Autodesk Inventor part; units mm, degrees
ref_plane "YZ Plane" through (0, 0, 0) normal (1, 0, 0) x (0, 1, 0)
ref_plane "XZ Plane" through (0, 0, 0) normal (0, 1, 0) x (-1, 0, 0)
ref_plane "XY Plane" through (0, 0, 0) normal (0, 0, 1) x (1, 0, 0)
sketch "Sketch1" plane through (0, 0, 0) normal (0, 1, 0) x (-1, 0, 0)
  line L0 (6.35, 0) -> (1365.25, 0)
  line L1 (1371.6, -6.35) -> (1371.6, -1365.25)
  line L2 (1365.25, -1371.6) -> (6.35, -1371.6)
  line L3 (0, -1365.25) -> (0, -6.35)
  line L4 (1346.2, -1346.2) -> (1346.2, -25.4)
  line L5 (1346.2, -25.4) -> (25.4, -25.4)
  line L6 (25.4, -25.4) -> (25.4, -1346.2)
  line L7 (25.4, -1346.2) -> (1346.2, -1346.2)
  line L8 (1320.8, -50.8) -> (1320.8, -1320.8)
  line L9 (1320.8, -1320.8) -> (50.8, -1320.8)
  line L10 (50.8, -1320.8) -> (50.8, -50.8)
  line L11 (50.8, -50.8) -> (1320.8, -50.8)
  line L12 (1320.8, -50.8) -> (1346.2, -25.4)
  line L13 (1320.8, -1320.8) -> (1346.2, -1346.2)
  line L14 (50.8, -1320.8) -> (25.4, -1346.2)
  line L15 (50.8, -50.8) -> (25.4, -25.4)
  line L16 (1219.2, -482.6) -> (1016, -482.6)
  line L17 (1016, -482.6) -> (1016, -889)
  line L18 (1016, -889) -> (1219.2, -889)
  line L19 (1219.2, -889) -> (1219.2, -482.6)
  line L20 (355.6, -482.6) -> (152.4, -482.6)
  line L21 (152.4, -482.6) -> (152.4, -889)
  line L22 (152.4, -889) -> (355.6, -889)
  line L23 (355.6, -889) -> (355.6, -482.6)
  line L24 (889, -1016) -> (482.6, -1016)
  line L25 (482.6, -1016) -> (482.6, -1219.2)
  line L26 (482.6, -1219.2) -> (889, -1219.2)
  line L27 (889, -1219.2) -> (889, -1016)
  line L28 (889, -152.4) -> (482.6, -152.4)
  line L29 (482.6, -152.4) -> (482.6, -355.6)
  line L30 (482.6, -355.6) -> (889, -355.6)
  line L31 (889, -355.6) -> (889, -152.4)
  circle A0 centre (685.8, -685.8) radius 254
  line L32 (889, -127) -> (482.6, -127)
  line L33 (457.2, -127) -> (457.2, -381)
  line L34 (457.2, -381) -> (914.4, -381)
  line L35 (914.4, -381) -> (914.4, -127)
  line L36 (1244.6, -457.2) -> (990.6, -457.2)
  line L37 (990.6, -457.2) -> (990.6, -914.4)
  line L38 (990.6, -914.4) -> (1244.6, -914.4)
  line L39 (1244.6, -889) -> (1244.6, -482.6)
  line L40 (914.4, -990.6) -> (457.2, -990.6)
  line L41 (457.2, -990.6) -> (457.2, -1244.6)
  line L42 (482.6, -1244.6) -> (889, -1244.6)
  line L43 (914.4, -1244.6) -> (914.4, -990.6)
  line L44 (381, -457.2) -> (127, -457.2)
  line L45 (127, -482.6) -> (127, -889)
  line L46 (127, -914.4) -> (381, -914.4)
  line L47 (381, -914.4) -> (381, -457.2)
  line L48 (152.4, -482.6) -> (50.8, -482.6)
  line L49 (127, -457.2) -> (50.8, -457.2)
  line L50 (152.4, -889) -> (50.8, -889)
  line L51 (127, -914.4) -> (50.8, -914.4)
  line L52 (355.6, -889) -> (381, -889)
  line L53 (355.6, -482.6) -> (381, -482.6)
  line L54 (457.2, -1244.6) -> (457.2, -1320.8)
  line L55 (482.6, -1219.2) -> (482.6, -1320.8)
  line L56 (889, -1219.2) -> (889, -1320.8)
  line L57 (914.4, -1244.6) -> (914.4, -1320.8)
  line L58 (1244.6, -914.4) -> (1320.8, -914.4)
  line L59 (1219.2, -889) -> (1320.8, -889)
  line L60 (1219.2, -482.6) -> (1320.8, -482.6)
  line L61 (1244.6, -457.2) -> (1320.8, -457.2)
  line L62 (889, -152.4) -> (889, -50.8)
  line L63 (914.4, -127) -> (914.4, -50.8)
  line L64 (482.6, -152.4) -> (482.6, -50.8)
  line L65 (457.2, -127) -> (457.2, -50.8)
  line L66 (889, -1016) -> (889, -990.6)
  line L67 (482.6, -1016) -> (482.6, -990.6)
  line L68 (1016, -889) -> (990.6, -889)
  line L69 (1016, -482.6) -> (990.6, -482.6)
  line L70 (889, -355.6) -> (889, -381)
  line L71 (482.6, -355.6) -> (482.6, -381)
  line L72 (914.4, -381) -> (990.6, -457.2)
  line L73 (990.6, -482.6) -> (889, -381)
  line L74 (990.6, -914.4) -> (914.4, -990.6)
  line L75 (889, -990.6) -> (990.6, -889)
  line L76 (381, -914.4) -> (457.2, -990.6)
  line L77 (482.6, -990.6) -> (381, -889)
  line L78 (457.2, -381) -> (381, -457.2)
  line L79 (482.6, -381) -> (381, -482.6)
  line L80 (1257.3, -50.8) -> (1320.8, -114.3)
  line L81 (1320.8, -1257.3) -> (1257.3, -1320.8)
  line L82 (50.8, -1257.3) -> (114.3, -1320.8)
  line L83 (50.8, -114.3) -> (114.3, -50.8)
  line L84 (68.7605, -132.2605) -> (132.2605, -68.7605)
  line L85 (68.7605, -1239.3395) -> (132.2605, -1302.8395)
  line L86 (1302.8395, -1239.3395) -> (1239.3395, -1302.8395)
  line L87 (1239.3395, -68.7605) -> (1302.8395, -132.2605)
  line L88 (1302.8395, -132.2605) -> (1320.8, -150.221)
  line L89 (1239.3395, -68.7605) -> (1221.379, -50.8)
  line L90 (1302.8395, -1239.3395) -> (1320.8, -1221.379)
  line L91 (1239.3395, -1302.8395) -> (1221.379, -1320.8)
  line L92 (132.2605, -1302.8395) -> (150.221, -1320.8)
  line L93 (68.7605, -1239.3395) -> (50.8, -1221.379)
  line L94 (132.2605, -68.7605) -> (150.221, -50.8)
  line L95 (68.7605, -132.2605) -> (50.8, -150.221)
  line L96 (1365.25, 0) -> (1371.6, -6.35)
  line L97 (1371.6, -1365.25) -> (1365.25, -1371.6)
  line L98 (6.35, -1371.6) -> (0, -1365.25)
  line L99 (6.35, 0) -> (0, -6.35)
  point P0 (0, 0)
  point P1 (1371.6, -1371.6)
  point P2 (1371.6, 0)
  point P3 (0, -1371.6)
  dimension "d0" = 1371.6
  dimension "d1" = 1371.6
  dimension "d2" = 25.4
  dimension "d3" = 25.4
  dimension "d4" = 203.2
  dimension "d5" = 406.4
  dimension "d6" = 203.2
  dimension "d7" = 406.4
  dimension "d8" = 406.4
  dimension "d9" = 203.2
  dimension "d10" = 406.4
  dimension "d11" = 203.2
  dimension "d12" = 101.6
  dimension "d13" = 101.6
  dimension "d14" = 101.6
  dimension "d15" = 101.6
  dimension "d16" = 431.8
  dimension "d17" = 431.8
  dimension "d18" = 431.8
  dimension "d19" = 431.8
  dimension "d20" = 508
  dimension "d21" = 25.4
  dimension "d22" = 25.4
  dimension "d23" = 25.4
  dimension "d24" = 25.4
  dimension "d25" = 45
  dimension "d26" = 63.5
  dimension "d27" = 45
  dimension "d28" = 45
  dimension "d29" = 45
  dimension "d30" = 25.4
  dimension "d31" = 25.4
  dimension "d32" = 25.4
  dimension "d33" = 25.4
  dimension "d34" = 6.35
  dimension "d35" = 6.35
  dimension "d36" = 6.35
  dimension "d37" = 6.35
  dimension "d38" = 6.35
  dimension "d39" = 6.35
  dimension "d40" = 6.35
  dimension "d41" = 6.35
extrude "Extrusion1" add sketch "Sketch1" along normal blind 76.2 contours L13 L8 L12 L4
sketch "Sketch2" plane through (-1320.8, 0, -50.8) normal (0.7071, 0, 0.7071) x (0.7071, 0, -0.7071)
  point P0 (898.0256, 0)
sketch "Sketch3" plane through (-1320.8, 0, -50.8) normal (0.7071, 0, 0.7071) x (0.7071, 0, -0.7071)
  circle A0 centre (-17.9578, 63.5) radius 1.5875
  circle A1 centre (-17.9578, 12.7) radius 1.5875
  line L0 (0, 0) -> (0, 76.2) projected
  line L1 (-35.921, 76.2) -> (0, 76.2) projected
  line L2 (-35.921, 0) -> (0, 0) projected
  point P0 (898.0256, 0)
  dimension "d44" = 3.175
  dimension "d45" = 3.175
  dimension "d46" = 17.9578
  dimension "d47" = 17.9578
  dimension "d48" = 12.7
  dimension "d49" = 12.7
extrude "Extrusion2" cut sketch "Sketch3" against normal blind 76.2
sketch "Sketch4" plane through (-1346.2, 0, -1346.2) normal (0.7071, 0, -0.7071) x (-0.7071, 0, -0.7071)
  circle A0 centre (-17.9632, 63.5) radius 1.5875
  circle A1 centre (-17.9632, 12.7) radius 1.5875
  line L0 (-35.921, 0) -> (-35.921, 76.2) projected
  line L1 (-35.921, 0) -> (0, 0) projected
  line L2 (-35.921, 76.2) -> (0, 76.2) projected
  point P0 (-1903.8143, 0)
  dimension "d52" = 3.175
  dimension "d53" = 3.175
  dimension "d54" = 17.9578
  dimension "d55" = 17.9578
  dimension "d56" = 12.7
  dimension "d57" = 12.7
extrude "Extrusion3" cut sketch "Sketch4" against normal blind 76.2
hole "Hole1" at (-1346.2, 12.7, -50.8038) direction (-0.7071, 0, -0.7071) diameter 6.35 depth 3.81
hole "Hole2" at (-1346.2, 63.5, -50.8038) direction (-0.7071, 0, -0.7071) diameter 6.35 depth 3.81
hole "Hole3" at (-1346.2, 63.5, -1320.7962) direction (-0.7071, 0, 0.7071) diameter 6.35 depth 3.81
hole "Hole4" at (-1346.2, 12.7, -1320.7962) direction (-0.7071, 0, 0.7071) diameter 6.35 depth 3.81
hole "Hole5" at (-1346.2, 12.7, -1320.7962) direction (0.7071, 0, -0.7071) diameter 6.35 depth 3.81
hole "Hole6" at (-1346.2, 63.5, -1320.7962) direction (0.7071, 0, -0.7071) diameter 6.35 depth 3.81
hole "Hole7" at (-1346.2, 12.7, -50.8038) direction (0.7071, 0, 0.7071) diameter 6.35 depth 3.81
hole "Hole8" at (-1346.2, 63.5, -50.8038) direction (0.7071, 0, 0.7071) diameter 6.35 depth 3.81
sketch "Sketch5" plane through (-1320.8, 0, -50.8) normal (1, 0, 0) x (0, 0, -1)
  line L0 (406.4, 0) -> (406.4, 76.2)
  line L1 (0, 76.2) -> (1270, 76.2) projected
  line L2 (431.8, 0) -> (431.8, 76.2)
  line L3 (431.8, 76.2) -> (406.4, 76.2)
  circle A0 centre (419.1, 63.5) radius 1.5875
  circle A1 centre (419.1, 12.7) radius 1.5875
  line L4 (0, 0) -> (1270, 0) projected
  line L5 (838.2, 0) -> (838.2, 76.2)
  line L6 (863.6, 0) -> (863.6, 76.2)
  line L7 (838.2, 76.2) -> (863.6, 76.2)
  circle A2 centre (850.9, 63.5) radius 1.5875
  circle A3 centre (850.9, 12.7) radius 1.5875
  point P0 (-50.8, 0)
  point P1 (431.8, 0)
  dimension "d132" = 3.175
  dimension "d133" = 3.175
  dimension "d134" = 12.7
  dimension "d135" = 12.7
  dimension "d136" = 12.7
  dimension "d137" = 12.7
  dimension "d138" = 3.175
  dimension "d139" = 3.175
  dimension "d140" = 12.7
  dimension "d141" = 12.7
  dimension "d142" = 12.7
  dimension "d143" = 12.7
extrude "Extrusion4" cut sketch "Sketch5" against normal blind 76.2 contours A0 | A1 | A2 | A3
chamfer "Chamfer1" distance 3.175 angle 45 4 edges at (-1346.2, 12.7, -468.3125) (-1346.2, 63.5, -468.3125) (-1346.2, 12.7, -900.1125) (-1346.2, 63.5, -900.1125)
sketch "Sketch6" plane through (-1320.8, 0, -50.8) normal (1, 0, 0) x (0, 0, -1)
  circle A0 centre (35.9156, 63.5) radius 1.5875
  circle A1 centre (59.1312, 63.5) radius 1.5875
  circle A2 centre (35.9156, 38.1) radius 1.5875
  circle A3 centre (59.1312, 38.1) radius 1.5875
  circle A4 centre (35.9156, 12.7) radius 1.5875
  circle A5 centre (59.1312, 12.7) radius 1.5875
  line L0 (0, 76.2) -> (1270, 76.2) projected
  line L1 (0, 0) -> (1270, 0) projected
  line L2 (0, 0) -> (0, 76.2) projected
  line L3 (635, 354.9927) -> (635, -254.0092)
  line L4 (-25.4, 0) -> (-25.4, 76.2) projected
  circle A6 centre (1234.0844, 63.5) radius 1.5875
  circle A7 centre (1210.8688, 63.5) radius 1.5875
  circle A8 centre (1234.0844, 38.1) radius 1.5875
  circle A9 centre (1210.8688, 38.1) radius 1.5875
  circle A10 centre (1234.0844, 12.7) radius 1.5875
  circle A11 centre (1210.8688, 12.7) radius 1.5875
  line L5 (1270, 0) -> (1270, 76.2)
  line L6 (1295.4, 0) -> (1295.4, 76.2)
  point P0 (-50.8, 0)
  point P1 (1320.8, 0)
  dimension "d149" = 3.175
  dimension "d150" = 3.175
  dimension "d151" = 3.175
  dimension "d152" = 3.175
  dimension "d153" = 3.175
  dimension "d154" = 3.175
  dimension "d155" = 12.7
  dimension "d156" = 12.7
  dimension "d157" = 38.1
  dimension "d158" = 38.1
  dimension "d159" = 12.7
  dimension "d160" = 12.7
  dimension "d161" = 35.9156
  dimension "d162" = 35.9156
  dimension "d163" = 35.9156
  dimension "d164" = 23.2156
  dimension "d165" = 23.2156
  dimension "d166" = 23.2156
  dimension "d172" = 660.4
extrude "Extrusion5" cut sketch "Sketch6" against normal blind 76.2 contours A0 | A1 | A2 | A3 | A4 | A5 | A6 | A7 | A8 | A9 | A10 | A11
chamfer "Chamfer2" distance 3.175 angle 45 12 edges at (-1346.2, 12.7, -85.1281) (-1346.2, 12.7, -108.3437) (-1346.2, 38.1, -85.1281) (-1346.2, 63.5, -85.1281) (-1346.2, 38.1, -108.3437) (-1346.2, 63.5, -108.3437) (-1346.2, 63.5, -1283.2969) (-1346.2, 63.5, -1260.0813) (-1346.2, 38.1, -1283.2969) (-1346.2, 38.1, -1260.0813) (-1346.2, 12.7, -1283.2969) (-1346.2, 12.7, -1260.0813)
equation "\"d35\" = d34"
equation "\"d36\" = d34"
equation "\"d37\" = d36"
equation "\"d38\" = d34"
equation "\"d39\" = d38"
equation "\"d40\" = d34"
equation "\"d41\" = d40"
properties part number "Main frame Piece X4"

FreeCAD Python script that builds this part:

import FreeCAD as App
import Part
import Sketcher
from FreeCAD import Vector
Q = App.Units.Quantity


def edges_at(feature, points):
    """Names of the edges that pass closest to the given points."""
    edges = feature.Shape.Edges
    near = lambda p: min(range(len(edges)), key=lambda i: edges[i].distToShape(Part.Vertex(*p))[0])
    return sorted({f"Edge{near(p) + 1}" for p in points})

doc = App.newDocument("Part")
params = doc.addObject("Spreadsheet::Sheet", "Params")
for row, (alias, value) in enumerate([
    ("sketch1_height", "52 in"),
    ("pad1_length", "3 in"),
    ("sketch2_diameter", "0.125 in"),
    ("pocket1_length", "3 in"),
    ("sketch3_diameter", "0.125 in"),
    ("pocket2_length", "3 in"),
    ("sketch4_diameter", "0.25 in"),
    ("hole_diameter", "0.25 in"),
    ("hole_depth", "0.15 in"),
    ("sketch5_diameter", "0.25 in"),
    ("hole2_diameter", "0.25 in"),
    ("hole2_depth", "0.15 in"),
    ("sketch6_diameter", "0.25 in"),
    ("hole3_diameter", "0.25 in"),
    ("hole3_depth", "0.15 in"),
    ("sketch7_diameter", "0.25 in"),
    ("hole4_diameter", "0.25 in"),
    ("hole4_depth", "0.15 in"),
    ("sketch8_diameter", "0.25 in"),
    ("hole5_diameter", "0.25 in"),
    ("hole5_depth", "0.15 in"),
    ("sketch9_diameter", "0.25 in"),
    ("hole6_diameter", "0.25 in"),
    ("hole6_depth", "0.15 in"),
    ("sketch10_diameter", "0.25 in"),
    ("hole7_diameter", "0.25 in"),
    ("hole7_depth", "0.15 in"),
    ("sketch11_diameter", "0.25 in"),
    ("hole8_diameter", "0.25 in"),
    ("hole8_depth", "0.15 in"),
    ("sketch12_diameter", "0.125 in"),
    ("pocket3_length", "3 in"),
    ("chamfer_size", "0.125 in"),
    ("sketch13_diameter", "0.125 in"),
    ("pocket4_length", "3 in"),
    ("chamfer2_size", "0.125 in"),
], start=1):
    params.set(f"A{row}", alias)
    params.set(f"B{row}", "=" + value)
    params.setAlias(f"B{row}", alias)

body = doc.addObject("PartDesign::Body", "Body")

sketch1 = body.newObject("Sketcher::SketchObject", "Sketch")
sketch1.AttachmentSupport = (doc.getObject("XZ_Plane"), [""])
sketch1.MapMode = "FlatFace"
sketch1.addGeometry(Part.LineSegment(Vector(-1321, -1321, 0), Vector(-1346, -1346, 0)), False)
sketch1.addGeometry(Part.LineSegment(Vector(-1346, -1346, 0), Vector(-1346, -25, 0)), False)
sketch1.addGeometry(Part.LineSegment(Vector(-1346, -25, 0), Vector(-1321, -51, 0)), False)
sketch1.addGeometry(Part.LineSegment(Vector(-1321, -51, 0), Vector(-1321, -1321, 0)), False)
sketch1.addConstraint(Sketcher.Constraint("Coincident", 0, 2, 1, 1))
sketch1.addConstraint(Sketcher.Constraint("Coincident", 1, 2, 2, 1))
sketch1.addConstraint(Sketcher.Constraint("Coincident", 2, 2, 3, 1))
sketch1.addConstraint(Sketcher.Constraint("Coincident", 3, 2, 0, 1))
sketch1.addConstraint(Sketcher.Constraint("Vertical", 1))
sketch1.addConstraint(Sketcher.Constraint("Vertical", 3))
sketch1.addConstraint(Sketcher.Constraint("Perpendicular", 0, 2))
sketch1.addConstraint(Sketcher.Constraint("Equal", 0, 2))
sketch1.addConstraint(Sketcher.Constraint("DistanceY", 1, 2, -1, 1, Q("1 in")))
sketch1.addConstraint(Sketcher.Constraint("DistanceX", 1, 2, 2, 2, Q("1 in")))
sketch1.addConstraint(Sketcher.Constraint("DistanceY", 1, 1, 1, 2, Q("52 in")))
sketch1.addConstraint(Sketcher.Constraint("DistanceX", 0, 2, -1, 1, Q("53 in")))
sketch1.setExpression("Constraints[10]", "Params.sketch1_height")
pad1 = body.newObject("PartDesign::Pad", "Pad")
pad1.Profile = sketch1
pad1.setExpression("Length", "Params.pad1_length")
pad1.Reversed = True

sketch2 = body.newObject("Sketcher::SketchObject", "Sketch001")
sketch2.Placement = App.Placement(Vector(-1320.8, 0, -50.8), App.Rotation(Vector(0.707106781, 0, -0.707106781), Vector(0, 0.999999999, 0), Vector(0.707106781, 0, 0.707106781), "ZXY"))
sketch2.addGeometry(Part.Circle(Vector(-18, 63.5, 0), Vector(0, 0, 1), 1.6), False)
sketch2.addGeometry(Part.Circle(Vector(-18, 12.7, 0), Vector(0, 0, 1), 1.6), False)
sketch2.addConstraint(Sketcher.Constraint("Equal", 0, 1))
sketch2.addConstraint(Sketcher.Constraint("Vertical", 0, 3, 1, 3))
sketch2.addConstraint(Sketcher.Constraint("Diameter", 0, Q("0.125 in")))
sketch2.addConstraint(Sketcher.Constraint("DistanceY", -1, 1, 1, 3, Q("0.5 in")))
sketch2.addConstraint(Sketcher.Constraint("DistanceX", 0, 3, -1, 1, Q("0.707 in")))
sketch2.addConstraint(Sketcher.Constraint("DistanceY", 1, 3, 0, 3, Q("2 in")))
sketch2.setExpression("Constraints[2]", "Params.sketch2_diameter")
pocket1 = body.newObject("PartDesign::Pocket", "Pocket")
pocket1.Profile = sketch2
pocket1.setExpression("Length", "Params.pocket1_length")

sketch3 = body.newObject("Sketcher::SketchObject", "Sketch002")
sketch3.Placement = App.Placement(Vector(-1346.2, 0, -1346.2), App.Rotation(Vector(-0.707106781, 0, -0.707106781), Vector(0, 0.999999999, 0), Vector(0.707106781, 0, -0.707106781), "ZXY"))
sketch3.addGeometry(Part.Circle(Vector(-18, 63.5, 0), Vector(0, 0, 1), 1.6), False)
sketch3.addGeometry(Part.Circle(Vector(-18, 12.7, 0), Vector(0, 0, 1), 1.6), False)
sketch3.addConstraint(Sketcher.Constraint("Equal", 0, 1))
sketch3.addConstraint(Sketcher.Constraint("Vertical", 0, 3, 1, 3))
sketch3.addConstraint(Sketcher.Constraint("Diameter", 0, Q("0.125 in")))
sketch3.addConstraint(Sketcher.Constraint("DistanceY", -1, 1, 1, 3, Q("0.5 in")))
sketch3.addConstraint(Sketcher.Constraint("DistanceY", 1, 3, 0, 3, Q("2 in")))
sketch3.addConstraint(Sketcher.Constraint("DistanceX", 0, 3, -1, 1, 17.9632))
sketch3.setExpression("Constraints[2]", "Params.sketch3_diameter")
pocket2 = body.newObject("PartDesign::Pocket", "Pocket001")
pocket2.Profile = sketch3
pocket2.setExpression("Length", "Params.pocket2_length")

sketch4 = body.newObject("Sketcher::SketchObject", "Sketch003")
sketch4.Placement = App.Placement(Vector(-698.5019, 0, -698.5019), App.Rotation(Vector(0.707106781, 0, -0.707106781), Vector(0, 0.999999999, 0), Vector(0.707106781, 0, 0.707106781), "ZXY"))
sketch4.addGeometry(Part.Circle(Vector(-916, 12.7, 0), Vector(0, 0, 1), 3.2), False)
sketch4.addConstraint(Sketcher.Constraint("Diameter", 0, Q("0.25 in")))
sketch4.addConstraint(Sketcher.Constraint("DistanceY", -1, 1, 0, 3, Q("0.5 in")))
sketch4.addConstraint(Sketcher.Constraint("DistanceX", 0, 3, -1, 1, 915.9834))
sketch4.setExpression("Constraints[0]", "Params.sketch4_diameter")
doc.recompute()
hole = body.newObject("PartDesign::Hole", "Hole")
hole.Profile = sketch4
hole.ThreadType = "None"
hole.setExpression("Diameter", "Params.hole_diameter")
hole.DepthType = "Dimension"
hole.setExpression("Depth", "Params.hole_depth")
hole.DrillPoint = "Flat"

sketch5 = body.newObject("Sketcher::SketchObject", "Sketch004")
sketch5.Placement = App.Placement(Vector(-698.5019, 0, -698.5019), App.Rotation(Vector(0.707106781, 0, -0.707106781), Vector(0, 0.999999999, 0), Vector(0.707106781, 0, 0.707106781), "ZXY"))
sketch5.addGeometry(Part.Circle(Vector(-916, 63.5, 0), Vector(0, 0, 1), 3.2), False)
sketch5.addConstraint(Sketcher.Constraint("Diameter", 0, Q("0.25 in")))
sketch5.addConstraint(Sketcher.Constraint("DistanceY", -1, 1, 0, 3, Q("2.5 in")))
sketch5.addConstraint(Sketcher.Constraint("DistanceX", 0, 3, -1, 1, 915.9834))
sketch5.setExpression("Constraints[0]", "Params.sketch5_diameter")
doc.recompute()
hole2 = body.newObject("PartDesign::Hole", "Hole001")
hole2.Profile = sketch5
hole2.ThreadType = "None"
hole2.setExpression("Diameter", "Params.hole2_diameter")
hole2.DepthType = "Dimension"
hole2.setExpression("Depth", "Params.hole2_depth")
hole2.DrillPoint = "Flat"

sketch6 = body.newObject("Sketcher::SketchObject", "Sketch005")
sketch6.Placement = App.Placement(Vector(-12.7019, 0, 12.7019), App.Rotation(Vector(-0.707106781, 0, -0.707106781), Vector(0, 0.999999999, 0), Vector(0.707106781, 0, -0.707106781), "ZXY"))
sketch6.addGeometry(Part.Circle(Vector(1885.9, 63.5, 0), Vector(0, 0, 1), 3.2), False)
sketch6.addConstraint(Sketcher.Constraint("Diameter", 0, Q("0.25 in")))
sketch6.addConstraint(Sketcher.Constraint("DistanceY", -1, 1, 0, 3, Q("2.5 in")))
sketch6.addConstraint(Sketcher.Constraint("DistanceX", -1, 1, 0, 3, Q("74.2461 in")))
sketch6.setExpression("Constraints[0]", "Params.sketch6_diameter")
doc.recompute()
hole3 = body.newObject("PartDesign::Hole", "Hole002")
hole3.Profile = sketch6
hole3.ThreadType = "None"
hole3.setExpression("Diameter", "Params.hole3_diameter")
hole3.DepthType = "Dimension"
hole3.setExpression("Depth", "Params.hole3_depth")
hole3.DrillPoint = "Flat"

sketch7 = body.newObject("Sketcher::SketchObject", "Sketch006")
sketch7.Placement = App.Placement(Vector(-12.7019, 0, 12.7019), App.Rotation(Vector(-0.707106781, 0, -0.707106781), Vector(0, 0.999999999, 0), Vector(0.707106781, 0, -0.707106781), "ZXY"))
sketch7.addGeometry(Part.Circle(Vector(1885.9, 12.7, 0), Vector(0, 0, 1), 3.2), False)
sketch7.addConstraint(Sketcher.Constraint("Diameter", 0, Q("0.25 in")))
sketch7.addConstraint(Sketcher.Constraint("DistanceY", -1, 1, 0, 3, Q("0.5 in")))
sketch7.addConstraint(Sketcher.Constraint("DistanceX", -1, 1, 0, 3, Q("74.2461 in")))
sketch7.setExpression("Constraints[0]", "Params.sketch7_diameter")
doc.recompute()
hole4 = body.newObject("PartDesign::Hole", "Hole003")
hole4.Profile = sketch7
hole4.ThreadType = "None"
hole4.setExpression("Diameter", "Params.hole4_diameter")
hole4.DepthType = "Dimension"
hole4.setExpression("Depth", "Params.hole4_depth")
hole4.DrillPoint = "Flat"

sketch8 = body.newObject("Sketcher::SketchObject", "Sketch007")
sketch8.Placement = App.Placement(Vector(-12.7019, 0, 12.7019), App.Rotation(Vector(0.707106781, 0, 0.707106781), Vector(0, 0.999999999, 0), Vector(-0.707106781, 0, 0.707106781), "ZXY"))
sketch8.addGeometry(Part.Circle(Vector(-1885.9, 12.7, 0), Vector(0, 0, 1), 3.2), False)
sketch8.addConstraint(Sketcher.Constraint("Diameter", 0, Q("0.25 in")))
sketch8.addConstraint(Sketcher.Constraint("DistanceY", -1, 1, 0, 3, Q("0.5 in")))
sketch8.addConstraint(Sketcher.Constraint("DistanceX", 0, 3, -1, 1, Q("74.2461 in")))
sketch8.setExpression("Constraints[0]", "Params.sketch8_diameter")
doc.recompute()
hole5 = body.newObject("PartDesign::Hole", "Hole004")
hole5.Profile = sketch8
hole5.ThreadType = "None"
hole5.setExpression("Diameter", "Params.hole5_diameter")
hole5.DepthType = "Dimension"
hole5.setExpression("Depth", "Params.hole5_depth")
hole5.DrillPoint = "Flat"

sketch9 = body.newObject("Sketcher::SketchObject", "Sketch008")
sketch9.Placement = App.Placement(Vector(-12.7019, 0, 12.7019), App.Rotation(Vector(0.707106781, 0, 0.707106781), Vector(0, 0.999999999, 0), Vector(-0.707106781, 0, 0.707106781), "ZXY"))
sketch9.addGeometry(Part.Circle(Vector(-1885.9, 63.5, 0), Vector(0, 0, 1), 3.2), False)
sketch9.addConstraint(Sketcher.Constraint("Diameter", 0, Q("0.25 in")))
sketch9.addConstraint(Sketcher.Constraint("DistanceY", -1, 1, 0, 3, Q("2.5 in")))
sketch9.addConstraint(Sketcher.Constraint("DistanceX", 0, 3, -1, 1, Q("74.2461 in")))
sketch9.setExpression("Constraints[0]", "Params.sketch9_diameter")
doc.recompute()
hole6 = body.newObject("PartDesign::Hole", "Hole005")
hole6.Profile = sketch9
hole6.ThreadType = "None"
hole6.setExpression("Diameter", "Params.hole6_diameter")
hole6.DepthType = "Dimension"
hole6.setExpression("Depth", "Params.hole6_depth")
hole6.DrillPoint = "Flat"

sketch10 = body.newObject("Sketcher::SketchObject", "Sketch009")
sketch10.Placement = App.Placement(Vector(-698.5019, 0, -698.5019), App.Rotation(Vector(-0.707106781, 0, 0.707106781), Vector(0, 0.999999999, 0), Vector(-0.707106781, 0, -0.707106781), "ZXY"))
sketch10.addGeometry(Part.Circle(Vector(916, 12.7, 0), Vector(0, 0, 1), 3.2), False)
sketch10.addConstraint(Sketcher.Constraint("Diameter", 0, Q("0.25 in")))
sketch10.addConstraint(Sketcher.Constraint("DistanceY", -1, 1, 0, 3, Q("0.5 in")))
sketch10.addConstraint(Sketcher.Constraint("DistanceX", -1, 1, 0, 3, 915.9834))
sketch10.setExpression("Constraints[0]", "Params.sketch10_diameter")
doc.recompute()
hole7 = body.newObject("PartDesign::Hole", "Hole006")
hole7.Profile = sketch10
hole7.ThreadType = "None"
hole7.setExpression("Diameter", "Params.hole7_diameter")
hole7.DepthType = "Dimension"
hole7.setExpression("Depth", "Params.hole7_depth")
hole7.DrillPoint = "Flat"

sketch11 = body.newObject("Sketcher::SketchObject", "Sketch010")
sketch11.Placement = App.Placement(Vector(-698.5019, 0, -698.5019), App.Rotation(Vector(-0.707106781, 0, 0.707106781), Vector(0, 0.999999999, 0), Vector(-0.707106781, 0, -0.707106781), "ZXY"))
sketch11.addGeometry(Part.Circle(Vector(916, 63.5, 0), Vector(0, 0, 1), 3.2), False)
sketch11.addConstraint(Sketcher.Constraint("Diameter", 0, Q("0.25 in")))
sketch11.addConstraint(Sketcher.Constraint("DistanceY", -1, 1, 0, 3, Q("2.5 in")))
sketch11.addConstraint(Sketcher.Constraint("DistanceX", -1, 1, 0, 3, 915.9834))
sketch11.setExpression("Constraints[0]", "Params.sketch11_diameter")
doc.recompute()
hole8 = body.newObject("PartDesign::Hole", "Hole007")
hole8.Profile = sketch11
hole8.ThreadType = "None"
hole8.setExpression("Diameter", "Params.hole8_diameter")
hole8.DepthType = "Dimension"
hole8.setExpression("Depth", "Params.hole8_depth")
hole8.DrillPoint = "Flat"

sketch12 = body.newObject("Sketcher::SketchObject", "Sketch011")
sketch12.AttachmentSupport = (doc.getObject("YZ_Plane"), [""])
sketch12.MapMode = "FlatFace"
sketch12.AttachmentOffset = App.Placement(Vector(0, 0, -52 * 25.4), App.Rotation())
sketch12.addGeometry(Part.Circle(Vector(63.5, -469.9, 0), Vector(0, 0, 1), 1.6), False)
sketch12.addGeometry(Part.Circle(Vector(12.7, -469.9, 0), Vector(0, 0, 1), 1.6), False)
sketch12.addGeometry(Part.Circle(Vector(63.5, -901.7, 0), Vector(0, 0, 1), 1.6), False)
sketch12.addGeometry(Part.Circle(Vector(12.7, -901.7, 0), Vector(0, 0, 1), 1.6), False)
sketch12.addConstraint(Sketcher.Constraint("Equal", 0, 1))
sketch12.addConstraint(Sketcher.Constraint("Equal", 1, 2))
sketch12.addConstraint(Sketcher.Constraint("Equal", 2, 3))
sketch12.addConstraint(Sketcher.Constraint("Horizontal", 0, 3, 1, 3))
sketch12.addConstraint(Sketcher.Constraint("Horizontal", 2, 3, 3, 3))
sketch12.addConstraint(Sketcher.Constraint("Vertical", 0, 3, 2, 3))
sketch12.addConstraint(Sketcher.Constraint("Vertical", 1, 3, 3, 3))
sketch12.addConstraint(Sketcher.Constraint("Diameter", 0, Q("0.125 in")))
sketch12.addConstraint(Sketcher.Constraint("DistanceX", -1, 1, 1, 3, Q("0.5 in")))
sketch12.addConstraint(Sketcher.Constraint("DistanceX", 1, 3, 0, 3, Q("2 in")))
sketch12.addConstraint(Sketcher.Constraint("DistanceY", 2, 3, 0, 3, Q("17 in")))
sketch12.addConstraint(Sketcher.Constraint("DistanceY", 0, 3, -1, 1, Q("18.5 in")))
sketch12.setExpression("Constraints[7]", "Params.sketch12_diameter")
pocket3 = body.newObject("PartDesign::Pocket", "Pocket002")
pocket3.Profile = sketch12
pocket3.setExpression("Length", "Params.pocket3_length")
doc.recompute()

chamfer = body.newObject("PartDesign::Chamfer", "Chamfer")
chamfer.Base = (pocket3, edges_at(pocket3, [
    (-1346.2, 12.7, -468.312),
    (-1346.2, 63.5, -468.312),
    (-1346.2, 12.7, -900.112),
    (-1346.2, 63.5, -900.112),
]))
chamfer.setExpression("Size", "Params.chamfer_size")

sketch13 = body.newObject("Sketcher::SketchObject", "Sketch012")
sketch13.AttachmentSupport = (doc.getObject("YZ_Plane"), [""])
sketch13.MapMode = "FlatFace"
sketch13.AttachmentOffset = App.Placement(Vector(0, 0, -52 * 25.4), App.Rotation())
sketch13.addGeometry(Part.Circle(Vector(63.5, -86.7, 0), Vector(0, 0, 1), 1.6), False)
sketch13.addGeometry(Part.Circle(Vector(63.5, -109.9, 0), Vector(0, 0, 1), 1.6), False)
sketch13.addGeometry(Part.Circle(Vector(38.1, -86.7, 0), Vector(0, 0, 1), 1.6), False)
sketch13.addGeometry(Part.Circle(Vector(38.1, -109.9, 0), Vector(0, 0, 1), 1.6), False)
sketch13.addGeometry(Part.Circle(Vector(12.7, -86.7, 0), Vector(0, 0, 1), 1.6), False)
sketch13.addGeometry(Part.Circle(Vector(12.7, -109.9, 0), Vector(0, 0, 1), 1.6), False)
sketch13.addGeometry(Part.Circle(Vector(63.5, -1284.9, 0), Vector(0, 0, 1), 1.6), False)
sketch13.addGeometry(Part.Circle(Vector(63.5, -1261.7, 0), Vector(0, 0, 1), 1.6), False)
sketch13.addGeometry(Part.Circle(Vector(38.1, -1284.9, 0), Vector(0, 0, 1), 1.6), False)
sketch13.addGeometry(Part.Circle(Vector(38.1, -1261.7, 0), Vector(0, 0, 1), 1.6), False)
sketch13.addGeometry(Part.Circle(Vector(12.7, -1284.9, 0), Vector(0, 0, 1), 1.6), False)
sketch13.addGeometry(Part.Circle(Vector(12.7, -1261.7, 0), Vector(0, 0, 1), 1.6), False)
sketch13.addConstraint(Sketcher.Constraint("Equal", 0, 1))
sketch13.addConstraint(Sketcher.Constraint("Equal", 1, 2))
sketch13.addConstraint(Sketcher.Constraint("Equal", 2, 3))
sketch13.addConstraint(Sketcher.Constraint("Equal", 3, 4))
sketch13.addConstraint(Sketcher.Constraint("Equal", 4, 5))
sketch13.addConstraint(Sketcher.Constraint("Equal", 5, 6))
sketch13.addConstraint(Sketcher.Constraint("Equal", 6, 7))
sketch13.addConstraint(Sketcher.Constraint("Equal", 7, 8))
sketch13.addConstraint(Sketcher.Constraint("Equal", 8, 9))
sketch13.addConstraint(Sketcher.Constraint("Equal", 9, 10))
sketch13.addConstraint(Sketcher.Constraint("Equal", 10, 11))
sketch13.addConstraint(Sketcher.Constraint("Horizontal", 0, 3, 2, 3))
sketch13.addConstraint(Sketcher.Constraint("Horizontal", 1, 3, 3, 3))
sketch13.addConstraint(Sketcher.Constraint("Horizontal", 2, 3, 4, 3))
sketch13.addConstraint(Sketcher.Constraint("Horizontal", 3, 3, 5, 3))
sketch13.addConstraint(Sketcher.Constraint("Horizontal", 6, 3, 8, 3))
sketch13.addConstraint(Sketcher.Constraint("Horizontal", 7, 3, 9, 3))
sketch13.addConstraint(Sketcher.Constraint("Horizontal", 8, 3, 10, 3))
sketch13.addConstraint(Sketcher.Constraint("Horizontal", 9, 3, 11, 3))
sketch13.addConstraint(Sketcher.Constraint("Vertical", 0, 3, 1, 3))
sketch13.addConstraint(Sketcher.Constraint("Vertical", 2, 3, 3, 3))
sketch13.addConstraint(Sketcher.Constraint("Vertical", 4, 3, 5, 3))
sketch13.addConstraint(Sketcher.Constraint("Vertical", 1, 3, 6, 3))
sketch13.addConstraint(Sketcher.Constraint("Vertical", 6, 3, 7, 3))
sketch13.addConstraint(Sketcher.Constraint("Vertical", 3, 3, 8, 3))
sketch13.addConstraint(Sketcher.Constraint("Vertical", 8, 3, 9, 3))
sketch13.addConstraint(Sketcher.Constraint("Vertical", 5, 3, 10, 3))
sketch13.addConstraint(Sketcher.Constraint("Vertical", 10, 3, 11, 3))
sketch13.addConstraint(Sketcher.Constraint("Diameter", 0, Q("0.125 in")))
sketch13.addConstraint(Sketcher.Constraint("DistanceX", -1, 1, 2, 3, Q("1.5 in")))
sketch13.addConstraint(Sketcher.Constraint("DistanceX", -1, 1, 4, 3, Q("0.5 in")))
sketch13.addConstraint(Sketcher.Constraint("DistanceY", 1, 3, 0, 3, Q("0.914 in")))
sketch13.addConstraint(Sketcher.Constraint("DistanceX", 2, 3, 0, 3, Q("1 in")))
sketch13.addConstraint(Sketcher.Constraint("DistanceY", 6, 3, 7, 3, Q("0.914 in")))
sketch13.addConstraint(Sketcher.Constraint("DistanceY", 0, 3, -1, 1, Q("3.414 in")))
sketch13.addConstraint(Sketcher.Constraint("DistanceY", 6, 3, -1, 1, Q("50.586 in")))
sketch13.setExpression("Constraints[28]", "Params.sketch13_diameter")
pocket4 = body.newObject("PartDesign::Pocket", "Pocket003")
pocket4.Profile = sketch13
pocket4.setExpression("Length", "Params.pocket4_length")
doc.recompute()

chamfer2 = body.newObject("PartDesign::Chamfer", "Chamfer001")
chamfer2.Base = (pocket4, edges_at(pocket4, [
    (-1346.2, 12.7, -85.128),
    (-1346.2, 12.7, -108.344),
    (-1346.2, 38.1, -85.128),
    (-1346.2, 63.5, -85.128),
    (-1346.2, 38.1, -108.344),
    (-1346.2, 63.5, -108.344),
    (-1346.2, 63.5, -1283.297),
    (-1346.2, 63.5, -1260.081),
    (-1346.2, 38.1, -1283.297),
    (-1346.2, 38.1, -1260.081),
    (-1346.2, 12.7, -1283.297),
    (-1346.2, 12.7, -1260.081),
]))
chamfer2.setExpression("Size", "Params.chamfer2_size")

doc.recompute()
